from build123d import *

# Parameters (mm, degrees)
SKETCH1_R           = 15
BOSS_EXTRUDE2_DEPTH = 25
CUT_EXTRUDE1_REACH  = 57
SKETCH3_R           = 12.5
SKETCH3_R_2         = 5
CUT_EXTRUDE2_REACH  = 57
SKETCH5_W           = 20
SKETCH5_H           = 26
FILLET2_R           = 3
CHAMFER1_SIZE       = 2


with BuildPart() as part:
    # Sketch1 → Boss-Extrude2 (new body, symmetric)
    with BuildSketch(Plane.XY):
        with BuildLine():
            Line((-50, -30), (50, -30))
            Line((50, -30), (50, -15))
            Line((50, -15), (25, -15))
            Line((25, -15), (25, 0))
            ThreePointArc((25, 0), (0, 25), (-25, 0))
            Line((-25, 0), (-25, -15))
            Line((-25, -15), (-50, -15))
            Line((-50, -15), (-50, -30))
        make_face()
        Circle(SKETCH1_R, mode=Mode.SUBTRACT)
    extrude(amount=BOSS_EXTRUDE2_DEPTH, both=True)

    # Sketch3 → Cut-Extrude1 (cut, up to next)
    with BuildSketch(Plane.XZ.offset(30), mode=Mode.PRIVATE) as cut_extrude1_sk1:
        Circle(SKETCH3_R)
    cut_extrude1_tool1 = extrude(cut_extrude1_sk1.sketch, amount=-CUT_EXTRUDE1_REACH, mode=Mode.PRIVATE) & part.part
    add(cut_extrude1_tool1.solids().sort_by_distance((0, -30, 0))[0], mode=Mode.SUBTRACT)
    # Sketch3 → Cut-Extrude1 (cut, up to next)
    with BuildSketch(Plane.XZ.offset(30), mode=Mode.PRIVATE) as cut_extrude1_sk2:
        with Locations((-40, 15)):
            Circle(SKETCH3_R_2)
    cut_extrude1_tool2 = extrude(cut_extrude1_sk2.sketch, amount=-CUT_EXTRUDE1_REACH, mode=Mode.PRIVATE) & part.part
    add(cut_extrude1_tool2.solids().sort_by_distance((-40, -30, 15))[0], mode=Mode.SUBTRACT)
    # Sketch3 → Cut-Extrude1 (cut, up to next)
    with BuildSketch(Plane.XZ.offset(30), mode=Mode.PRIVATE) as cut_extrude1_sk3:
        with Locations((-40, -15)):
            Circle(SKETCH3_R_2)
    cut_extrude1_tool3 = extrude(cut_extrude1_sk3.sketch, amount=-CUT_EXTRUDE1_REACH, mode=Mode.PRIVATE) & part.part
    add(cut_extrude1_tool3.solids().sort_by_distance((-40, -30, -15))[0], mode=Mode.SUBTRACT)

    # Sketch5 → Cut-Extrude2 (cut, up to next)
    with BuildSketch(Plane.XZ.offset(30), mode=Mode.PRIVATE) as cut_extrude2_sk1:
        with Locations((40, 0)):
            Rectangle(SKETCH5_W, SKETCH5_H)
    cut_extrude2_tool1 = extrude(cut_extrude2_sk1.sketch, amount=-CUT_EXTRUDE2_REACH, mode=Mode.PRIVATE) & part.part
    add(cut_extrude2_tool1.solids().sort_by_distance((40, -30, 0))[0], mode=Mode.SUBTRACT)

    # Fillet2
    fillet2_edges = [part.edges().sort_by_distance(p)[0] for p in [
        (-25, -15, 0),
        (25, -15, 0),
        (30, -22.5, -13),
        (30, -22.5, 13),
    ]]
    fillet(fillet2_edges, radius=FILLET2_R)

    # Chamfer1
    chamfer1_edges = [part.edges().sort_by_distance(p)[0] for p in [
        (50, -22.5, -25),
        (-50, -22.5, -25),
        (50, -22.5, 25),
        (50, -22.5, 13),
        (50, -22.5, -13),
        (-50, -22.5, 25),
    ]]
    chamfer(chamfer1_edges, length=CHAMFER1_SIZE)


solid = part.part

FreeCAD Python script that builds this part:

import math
import FreeCAD as App
import Part
import Sketcher
from FreeCAD import Vector


def edges_at(feature, points):
    """Names of the edges that pass closest to the given points."""
    edges = feature.Shape.Edges
    near = lambda p: min(range(len(edges)), key=lambda i: edges[i].distToShape(Part.Vertex(*p))[0])
    return sorted({f"Edge{near(p) + 1}" for p in points})


def add_polygon(sketch, points):
    """Adds a closed chain of lines whose ends are joined by coincident constraints."""
    first, n = sketch.GeometryCount, len(points)
    for a, b in zip(points, points[1:] + points[:1]):
        sketch.addGeometry(Part.LineSegment(App.Vector(*a, 0), App.Vector(*b, 0)), False)
    for i in range(n):
        sketch.addConstraint(Sketcher.Constraint("Coincident", first + i, 2, first + (i + 1) % n, 1))

doc = App.newDocument("Part")
body = doc.addObject("PartDesign::Body", "Body")

# Sketch on XY plane
sketch1 = doc.addObject("Sketcher::SketchObject", "Sketch")
body.addObject(sketch1)
sketch1.AttachmentSupport = (doc.XY_Plane, [""])
sketch1.MapMode = "FlatFace"
sketch1.addGeometry([
    Part.LineSegment(Vector(-50, -30, 0), Vector(50, -30, 0)),  # 0
    Part.LineSegment(Vector(50, -30, 0), Vector(50, -15, 0)),  # 1
    Part.LineSegment(Vector(50, -15, 0), Vector(25, -15, 0)),  # 2
    Part.LineSegment(Vector(25, -15, 0), Vector(25, 0, 0)),  # 3
    Part.ArcOfCircle(Part.Circle(Vector(0, 0, 0), Vector(0, 0, 1), 25), math.radians(0), math.radians(180)),  # 4
    Part.LineSegment(Vector(-25, 0, 0), Vector(-25, -15, 0)),  # 5
    Part.LineSegment(Vector(-25, -15, 0), Vector(-50, -15, 0)),  # 6
    Part.LineSegment(Vector(-50, -15, 0), Vector(-50, -30, 0)),  # 7
    Part.Circle(Vector(0, 0, 0), Vector(0, 0, 1), 15),  # 8
], False)
sketch1.addConstraint([
    Sketcher.Constraint("Coincident", 0, 2, 1, 1),
    Sketcher.Constraint("Coincident", 1, 2, 2, 1),
    Sketcher.Constraint("Coincident", 2, 2, 3, 1),
    Sketcher.Constraint("Tangent", 3, 2, 4, 1),
    Sketcher.Constraint("Tangent", 4, 2, 5, 1),
    Sketcher.Constraint("Coincident", 5, 2, 6, 1),
    Sketcher.Constraint("Coincident", 6, 2, 7, 1),
    Sketcher.Constraint("Coincident", 7, 2, 0, 1),
    Sketcher.Constraint("Horizontal", 0),
    Sketcher.Constraint("Vertical", 1),
    Sketcher.Constraint("Horizontal", 2),
    Sketcher.Constraint("Vertical", 3),
    Sketcher.Constraint("Vertical", 5),
    Sketcher.Constraint("Horizontal", 6),
    Sketcher.Constraint("Vertical", 7),
    Sketcher.Constraint("Coincident", 4, 3, -1, 1),
    Sketcher.Constraint("Coincident", 8, 3, -1, 1),
    Sketcher.Constraint("Symmetric", 1, 2, 6, 2, -2),
    Sketcher.Constraint("Equal", 1, 3),
    Sketcher.Constraint("Diameter", 8, 30.0),
    Sketcher.Constraint("Radius", 4, 25.0),
    Sketcher.Constraint("DistanceX", 0, 1, 0, 2, 100.0),
    Sketcher.Constraint("DistanceY", 1, 1, 1, 2, 15.0),
])
pad1 = doc.addObject("PartDesign::Pad", "Pad")
body.addObject(pad1)
pad1.Profile = sketch1
pad1.Length = 50
pad1.Midplane = True

# Sketch on XZ plane
sketch2 = doc.addObject("Sketcher::SketchObject", "Sketch001")
body.addObject(sketch2)
sketch2.AttachmentSupport = (doc.XZ_Plane, [""])
sketch2.MapMode = "FlatFace"
sketch2.AttachmentOffset = App.Placement(Vector(0, 0, 30), App.Rotation())
sketch2.addGeometry(Part.Circle(Vector(0, 0, 0), Vector(0, 0, 1), 12.5), False)
sketch2.addConstraint([
    Sketcher.Constraint("Coincident", 0, 3, -1, 1),
    Sketcher.Constraint("Diameter", 0, 25.0),
])
pocket1 = doc.addObject("PartDesign::Pocket", "Pocket")
body.addObject(pocket1)
pocket1.Profile = sketch2
pocket1.Length = 21.708438

# Sketch on XZ plane
sketch3 = doc.addObject("Sketcher::SketchObject", "Sketch002")
body.addObject(sketch3)
sketch3.AttachmentSupport = (doc.XZ_Plane, [""])
sketch3.MapMode = "FlatFace"
sketch3.AttachmentOffset = App.Placement(Vector(0, 0, 30), App.Rotation())
sketch3.addGeometry(Part.Circle(Vector(-40, 15, 0), Vector(0, 0, 1), 5), False)
sketch3.addConstraint([
    Sketcher.Constraint("Diameter", 0, 10.0),
    Sketcher.Constraint("DistanceX", 0, 3, -1, 1, 40.0),
    Sketcher.Constraint("DistanceY", -1, 1, 0, 3, 15.0),
])
pocket2 = doc.addObject("PartDesign::Pocket", "Pocket001")
body.addObject(pocket2)
pocket2.Profile = sketch3
pocket2.Type = "UpToFirst"

# Sketch on XZ plane
sketch4 = doc.addObject("Sketcher::SketchObject", "Sketch003")
body.addObject(sketch4)
sketch4.AttachmentSupport = (doc.XZ_Plane, [""])
sketch4.MapMode = "FlatFace"
sketch4.AttachmentOffset = App.Placement(Vector(0, 0, 30), App.Rotation())
sketch4.addGeometry(Part.Circle(Vector(-40, -15, 0), Vector(0, 0, 1), 5), False)
sketch4.addConstraint([
    Sketcher.Constraint("Diameter", 0, 10.0),
    Sketcher.Constraint("DistanceX", 0, 3, -1, 1, 40.0),
    Sketcher.Constraint("DistanceY", 0, 3, -1, 1, 15.0),
])
pocket3 = doc.addObject("PartDesign::Pocket", "Pocket002")
body.addObject(pocket3)
pocket3.Profile = sketch4
pocket3.Type = "UpToFirst"

# Sketch on XZ plane
sketch5 = doc.addObject("Sketcher::SketchObject", "Sketch004")
body.addObject(sketch5)
sketch5.AttachmentSupport = (doc.XZ_Plane, [""])
sketch5.MapMode = "FlatFace"
sketch5.AttachmentOffset = App.Placement(Vector(0, 0, 30), App.Rotation())
add_polygon(sketch5, [(30, 13), (30, -13), (50, -13), (50, 13)])  # lines 0-3
sketch5.addConstraint([
    Sketcher.Constraint("Vertical", 0),
    Sketcher.Constraint("Horizontal", 1),
    Sketcher.Constraint("Vertical", 2),
    Sketcher.Constraint("Horizontal", 3),
    Sketcher.Constraint("DistanceX", 1, 1, 1, 2, 20.0),
    Sketcher.Constraint("DistanceY", 0, 2, 0, 1, 26.0),
    Sketcher.Constraint("DistanceX", -1, 1, 0, 2, 30.0),
    Sketcher.Constraint("DistanceY", 0, 2, -1, 1, 13.0),
])
pocket4 = doc.addObject("PartDesign::Pocket", "Pocket003")
body.addObject(pocket4)
pocket4.Profile = sketch5
pocket4.Type = "UpToFirst"
doc.recompute()

fillet = doc.addObject("PartDesign::Fillet", "Fillet")
body.addObject(fillet)
fillet.Base = (pocket4, edges_at(pocket4, [
    (-25, -15, 0),
    (25, -15, 0),
    (30, -22.5, -13),
    (30, -22.5, 13),
]))
fillet.Radius = 3
doc.recompute()

chamfer = doc.addObject("PartDesign::Chamfer", "Chamfer")
body.addObject(chamfer)
chamfer.Base = (fillet, edges_at(fillet, [
    (50, -22.5, -25),
    (-50, -22.5, -25),
    (50, -22.5, 25),
    (50, -22.5, 13),
    (50, -22.5, -13),
    (-50, -22.5, 25),
]))
chamfer.Size = 2

doc.recompute()
